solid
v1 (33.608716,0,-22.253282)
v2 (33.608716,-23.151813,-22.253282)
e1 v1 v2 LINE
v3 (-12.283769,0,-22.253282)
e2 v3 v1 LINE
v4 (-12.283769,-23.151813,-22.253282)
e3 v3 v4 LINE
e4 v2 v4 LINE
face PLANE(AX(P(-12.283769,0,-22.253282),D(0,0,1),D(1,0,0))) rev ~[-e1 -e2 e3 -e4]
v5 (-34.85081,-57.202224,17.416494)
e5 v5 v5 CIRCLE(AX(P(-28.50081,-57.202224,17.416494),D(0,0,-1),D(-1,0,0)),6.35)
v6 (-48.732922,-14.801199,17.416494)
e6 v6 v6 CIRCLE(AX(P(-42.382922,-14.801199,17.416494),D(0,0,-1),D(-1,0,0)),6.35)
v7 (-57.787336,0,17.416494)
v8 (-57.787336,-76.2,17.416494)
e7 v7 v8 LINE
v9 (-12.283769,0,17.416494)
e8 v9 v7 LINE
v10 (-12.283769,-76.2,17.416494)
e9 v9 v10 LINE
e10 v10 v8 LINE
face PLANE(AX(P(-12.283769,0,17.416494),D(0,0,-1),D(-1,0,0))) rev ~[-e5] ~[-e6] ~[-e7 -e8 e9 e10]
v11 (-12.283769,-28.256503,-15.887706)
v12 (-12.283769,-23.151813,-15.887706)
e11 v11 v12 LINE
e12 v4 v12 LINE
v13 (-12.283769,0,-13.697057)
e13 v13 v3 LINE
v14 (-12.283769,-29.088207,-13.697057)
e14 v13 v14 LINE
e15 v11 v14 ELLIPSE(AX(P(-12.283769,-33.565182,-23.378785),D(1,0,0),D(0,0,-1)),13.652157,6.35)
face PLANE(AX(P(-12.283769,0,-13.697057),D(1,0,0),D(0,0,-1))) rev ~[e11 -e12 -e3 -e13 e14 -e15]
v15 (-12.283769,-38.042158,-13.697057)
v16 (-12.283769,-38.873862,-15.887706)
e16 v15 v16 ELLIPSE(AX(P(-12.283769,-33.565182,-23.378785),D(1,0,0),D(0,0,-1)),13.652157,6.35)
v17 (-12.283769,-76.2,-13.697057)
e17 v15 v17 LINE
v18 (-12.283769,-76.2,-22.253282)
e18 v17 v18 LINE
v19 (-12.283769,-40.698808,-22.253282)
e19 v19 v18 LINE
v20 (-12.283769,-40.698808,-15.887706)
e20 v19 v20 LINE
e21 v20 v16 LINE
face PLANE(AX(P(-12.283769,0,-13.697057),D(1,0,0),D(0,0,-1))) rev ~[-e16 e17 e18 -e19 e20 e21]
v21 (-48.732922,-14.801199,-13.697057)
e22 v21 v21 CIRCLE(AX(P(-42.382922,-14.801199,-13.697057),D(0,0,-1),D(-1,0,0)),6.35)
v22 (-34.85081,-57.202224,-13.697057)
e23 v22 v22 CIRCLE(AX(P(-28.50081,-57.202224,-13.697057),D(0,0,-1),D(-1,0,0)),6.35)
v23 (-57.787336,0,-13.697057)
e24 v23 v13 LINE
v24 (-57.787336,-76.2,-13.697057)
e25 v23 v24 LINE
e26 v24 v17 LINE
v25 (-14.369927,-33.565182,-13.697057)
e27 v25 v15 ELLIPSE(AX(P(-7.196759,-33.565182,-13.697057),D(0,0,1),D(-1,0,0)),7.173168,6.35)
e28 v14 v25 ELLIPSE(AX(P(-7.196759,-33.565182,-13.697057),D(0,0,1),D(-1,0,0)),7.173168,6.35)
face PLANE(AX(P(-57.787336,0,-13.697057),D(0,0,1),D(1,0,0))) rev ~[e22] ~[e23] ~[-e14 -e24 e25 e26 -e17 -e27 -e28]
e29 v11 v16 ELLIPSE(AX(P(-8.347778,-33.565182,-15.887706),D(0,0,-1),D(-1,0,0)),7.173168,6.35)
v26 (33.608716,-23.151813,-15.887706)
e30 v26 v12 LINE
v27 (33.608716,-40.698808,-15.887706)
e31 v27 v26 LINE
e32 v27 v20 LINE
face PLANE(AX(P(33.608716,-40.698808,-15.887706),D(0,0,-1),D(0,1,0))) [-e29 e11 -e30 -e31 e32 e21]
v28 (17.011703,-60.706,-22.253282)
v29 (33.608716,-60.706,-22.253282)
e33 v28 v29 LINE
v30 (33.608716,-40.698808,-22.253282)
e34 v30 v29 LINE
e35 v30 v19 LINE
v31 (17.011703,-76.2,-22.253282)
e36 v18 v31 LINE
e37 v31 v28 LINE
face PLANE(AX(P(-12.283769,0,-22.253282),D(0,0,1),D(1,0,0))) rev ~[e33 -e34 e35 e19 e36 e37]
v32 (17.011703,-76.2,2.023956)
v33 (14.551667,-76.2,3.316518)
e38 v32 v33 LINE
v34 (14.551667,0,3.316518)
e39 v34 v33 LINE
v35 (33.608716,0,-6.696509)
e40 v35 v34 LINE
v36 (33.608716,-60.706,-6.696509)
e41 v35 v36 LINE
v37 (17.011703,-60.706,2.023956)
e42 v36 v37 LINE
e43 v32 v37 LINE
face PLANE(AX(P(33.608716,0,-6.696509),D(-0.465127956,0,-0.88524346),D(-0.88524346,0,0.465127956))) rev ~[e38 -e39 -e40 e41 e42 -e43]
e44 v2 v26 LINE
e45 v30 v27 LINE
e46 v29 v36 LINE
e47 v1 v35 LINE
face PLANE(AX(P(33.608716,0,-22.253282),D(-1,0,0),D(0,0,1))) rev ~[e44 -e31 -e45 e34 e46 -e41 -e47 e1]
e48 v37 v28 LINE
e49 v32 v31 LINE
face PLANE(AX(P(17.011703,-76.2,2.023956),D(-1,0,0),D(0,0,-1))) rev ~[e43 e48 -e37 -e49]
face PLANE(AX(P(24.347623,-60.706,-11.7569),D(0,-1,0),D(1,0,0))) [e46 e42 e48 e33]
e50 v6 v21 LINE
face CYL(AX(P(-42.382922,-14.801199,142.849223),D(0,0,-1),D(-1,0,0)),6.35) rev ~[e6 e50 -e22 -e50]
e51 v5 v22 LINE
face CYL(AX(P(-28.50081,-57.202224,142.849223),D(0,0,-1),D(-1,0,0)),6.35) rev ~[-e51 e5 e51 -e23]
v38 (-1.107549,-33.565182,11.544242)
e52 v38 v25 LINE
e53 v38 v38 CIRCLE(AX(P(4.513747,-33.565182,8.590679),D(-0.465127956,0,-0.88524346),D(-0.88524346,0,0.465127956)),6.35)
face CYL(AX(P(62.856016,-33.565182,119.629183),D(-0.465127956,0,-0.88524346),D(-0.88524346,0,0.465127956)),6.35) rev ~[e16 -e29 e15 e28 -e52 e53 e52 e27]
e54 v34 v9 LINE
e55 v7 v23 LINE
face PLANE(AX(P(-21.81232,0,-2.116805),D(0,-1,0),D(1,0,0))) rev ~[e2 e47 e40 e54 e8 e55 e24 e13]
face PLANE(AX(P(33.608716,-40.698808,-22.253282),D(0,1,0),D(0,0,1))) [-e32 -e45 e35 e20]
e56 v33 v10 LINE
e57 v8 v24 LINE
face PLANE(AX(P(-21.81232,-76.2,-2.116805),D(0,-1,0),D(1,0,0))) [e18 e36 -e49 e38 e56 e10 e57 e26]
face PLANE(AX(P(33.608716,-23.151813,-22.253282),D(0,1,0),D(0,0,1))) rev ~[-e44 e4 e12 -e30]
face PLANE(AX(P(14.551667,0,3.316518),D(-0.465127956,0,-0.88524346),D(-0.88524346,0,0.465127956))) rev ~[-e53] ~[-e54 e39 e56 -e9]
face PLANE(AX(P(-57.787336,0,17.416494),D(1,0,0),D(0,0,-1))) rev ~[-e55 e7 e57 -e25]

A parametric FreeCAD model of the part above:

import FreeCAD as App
import Part
import Sketcher
Q = App.Units.Quantity


def add_polygon(sketch, points):
    """Adds a closed chain of lines whose ends are joined by coincident constraints."""
    first, n = sketch.GeometryCount, len(points)
    for a, b in zip(points, points[1:] + points[:1]):
        sketch.addGeometry(Part.LineSegment(App.Vector(*a, 0), App.Vector(*b, 0)), False)
    for i in range(n):
        sketch.addConstraint(Sketcher.Constraint("Coincident", first + i, 2, first + (i + 1) % n, 1))

doc = App.newDocument("Part")
params = doc.addObject("Spreadsheet::Sheet", "Params")
for row, (alias, value) in enumerate([
    ("pad1_length", "3 in"),
    ("sketch2_diameter", "0.5 in"),
    ("hole_diameter", "0.5 in"),
    ("pocket1_length", "0.61 in"),
    ("pocket2_length", "3 in"),
    ("sketch5_diameter", "0.5 in"),
    ("hole2_diameter", "0.5 in"),
], start=1):
    params.set(f"A{row}", alias)
    params.set(f"B{row}", "=" + value)
    params.setAlias(f"B{row}", alias)

body = doc.addObject("PartDesign::Body", "Body")

# Sketch on XZ plane
sketch1 = body.newObject("Sketcher::SketchObject", "Sketch")
sketch1.AttachmentSupport = (doc.getObject("XZ_Plane"), [""])
sketch1.MapMode = "FlatFace"
add_polygon(sketch1, [(-12, 17), (-58, 17), (-58, -14), (-12, -14), (-12, -22), (34, -22), (34, -7), (15, 3)])  # lines 0-7
sketch1.addConstraint([
    Sketcher.Constraint("Horizontal", 0),
    Sketcher.Constraint("Vertical", 1),
    Sketcher.Constraint("Horizontal", 2),
    Sketcher.Constraint("Vertical", 3),
    Sketcher.Constraint("Horizontal", 4),
    Sketcher.Constraint("Vertical", 5),
    Sketcher.Constraint("Parallel", 6, 7),
    Sketcher.Constraint("Vertical", 3, 2, 7, 2),
    Sketcher.Constraint("DistanceY", 1, 2, 1, 1, 31.113551),
    Sketcher.Constraint("DistanceY", 4, 2, 6, 2, 25.5698),
    Sketcher.Constraint("Distance", 7, 30.314188),
    Sketcher.Constraint("DistanceX", 0, 2, 0, 1, 45.503567),
    Sketcher.Constraint("DistanceX", 4, 1, 4, 2, 45.892485),
    Sketcher.Constraint("DistanceY", 3, 2, 3, 1, 8.556225),
    Sketcher.Constraint("DistanceX", 2, 2, -1, 1, 12.283769),
    Sketcher.Constraint("DistanceY", 5, 2, -1, 1, 6.696509),
])
pad1 = body.newObject("PartDesign::Pad", "Pad")
pad1.Profile = sketch1
pad1.setExpression("Length", "Params.pad1_length")

# Sketch on XY plane
sketch2 = body.newObject("Sketcher::SketchObject", "Sketch001")
sketch2.AttachmentSupport = (doc.getObject("XY_Plane"), [""])
sketch2.MapMode = "FlatFace"
sketch2.AttachmentOffset = App.Placement(App.Vector(0, 0, 17.416494), App.Rotation())
sketch2.addGeometry([
    Part.Circle(App.Vector(-42, -15, 0), App.Vector(0, 0, 1), 6),
    Part.Circle(App.Vector(-29, -57, 0), App.Vector(0, 0, 1), 6),
], False)
sketch2.addConstraint([
    Sketcher.Constraint("Equal", 0, 1),
    Sketcher.Constraint("Diameter", 0, Q("0.5 in")),
    Sketcher.Constraint("DistanceY", 0, 3, -1, 1, 14.801199),
    Sketcher.Constraint("DistanceX", 1, 3, -1, 1, 28.50081),
    Sketcher.Constraint("DistanceX", 0, 3, 1, 3, 13.882112),
    Sketcher.Constraint("DistanceY", 1, 3, -1, 1, 57.202224),
])
sketch2.setExpression("Constraints[1]", "Params.sketch2_diameter")
doc.recompute()
hole = body.newObject("PartDesign::Hole", "Hole")
hole.Profile = sketch2
hole.ThreadType = "None"
hole.setExpression("Diameter", "Params.hole_diameter")
hole.DepthType = "ThroughAll"

# Sketch on XZ plane
sketch3 = body.newObject("Sketcher::SketchObject", "Sketch002")
sketch3.AttachmentSupport = (doc.getObject("XZ_Plane"), [""])
sketch3.MapMode = "FlatFace"
sketch3.AttachmentOffset = App.Placement(App.Vector(0, 0, 3 * 25.4), App.Rotation())
add_polygon(sketch3, [(34, -7), (17, 2), (17, -22), (34, -22)])  # lines 0-3
sketch3.addConstraint([
    Sketcher.Constraint("Vertical", 1),
    Sketcher.Constraint("Horizontal", 2),
    Sketcher.Constraint("Vertical", 3),
    Sketcher.Constraint("DistanceY", 1, 2, 1, 1, 24.277239),
    Sketcher.Constraint("Distance", 0, 18.74853),
    Sketcher.Constraint("DistanceX", 2, 1, 2, 2, 16.597013),
    Sketcher.Constraint("DistanceY", 3, 2, -1, 1, 6.696509),
    Sketcher.Constraint("DistanceX", -1, 1, 0, 2, 17.011703),
])
pocket1 = body.newObject("PartDesign::Pocket", "Pocket")
pocket1.Profile = sketch3
pocket1.setExpression("Length", "Params.pocket1_length")

# Sketch on YZ plane
sketch4 = body.newObject("Sketcher::SketchObject", "Sketch003")
sketch4.AttachmentSupport = (doc.getObject("YZ_Plane"), [""])
sketch4.MapMode = "FlatFace"
sketch4.AttachmentOffset = App.Placement(App.Vector(0, 0, 33.608716), App.Rotation())
add_polygon(sketch4, [(-41, -16), (-41, -22), (-23, -22), (-23, -16)])  # lines 0-3
sketch4.addConstraint([
    Sketcher.Constraint("Vertical", 0),
    Sketcher.Constraint("Horizontal", 1),
    Sketcher.Constraint("Vertical", 2),
    Sketcher.Constraint("Horizontal", 3),
    Sketcher.Constraint("DistanceX", 1, 1, 1, 2, 17.546995),
    Sketcher.Constraint("DistanceY", 0, 2, 0, 1, 6.365577),
    Sketcher.Constraint("DistanceX", 0, 2, -1, 1, 40.698808),
    Sketcher.Constraint("DistanceY", 0, 2, -1, 1, 22.253282),
])
pocket2 = body.newObject("PartDesign::Pocket", "Pocket001")
pocket2.Profile = sketch4
pocket2.setExpression("Length", "Params.pocket2_length")

# Sketch on an angled plane
sketch5 = body.newObject("Sketcher::SketchObject", "Sketch004")
sketch5.Placement = App.Placement(App.Vector(4.513747, 0, 8.590679), App.Rotation(App.Vector(0.88524346, 0, -0.465127956), App.Vector(0, 0.999999999, 0), App.Vector(0.465127956, 0, 0.88524346), "ZXY"))
sketch5.addGeometry(Part.Circle(App.Vector(0, -34, 0), App.Vector(0, 0, 1), 6), False)
sketch5.addConstraint([
    Sketcher.Constraint("PointOnObject", 0, 3, -2),
    Sketcher.Constraint("Diameter", 0, Q("0.5 in")),
    Sketcher.Constraint("DistanceY", 0, 3, -1, 1, 33.565182),
])
sketch5.setExpression("Constraints[1]", "Params.sketch5_diameter")
doc.recompute()
hole2 = body.newObject("PartDesign::Hole", "Hole001")
hole2.Profile = sketch5
hole2.ThreadType = "None"
hole2.setExpression("Diameter", "Params.hole2_diameter")
hole2.DepthType = "ThroughAll"

doc.recompute()
